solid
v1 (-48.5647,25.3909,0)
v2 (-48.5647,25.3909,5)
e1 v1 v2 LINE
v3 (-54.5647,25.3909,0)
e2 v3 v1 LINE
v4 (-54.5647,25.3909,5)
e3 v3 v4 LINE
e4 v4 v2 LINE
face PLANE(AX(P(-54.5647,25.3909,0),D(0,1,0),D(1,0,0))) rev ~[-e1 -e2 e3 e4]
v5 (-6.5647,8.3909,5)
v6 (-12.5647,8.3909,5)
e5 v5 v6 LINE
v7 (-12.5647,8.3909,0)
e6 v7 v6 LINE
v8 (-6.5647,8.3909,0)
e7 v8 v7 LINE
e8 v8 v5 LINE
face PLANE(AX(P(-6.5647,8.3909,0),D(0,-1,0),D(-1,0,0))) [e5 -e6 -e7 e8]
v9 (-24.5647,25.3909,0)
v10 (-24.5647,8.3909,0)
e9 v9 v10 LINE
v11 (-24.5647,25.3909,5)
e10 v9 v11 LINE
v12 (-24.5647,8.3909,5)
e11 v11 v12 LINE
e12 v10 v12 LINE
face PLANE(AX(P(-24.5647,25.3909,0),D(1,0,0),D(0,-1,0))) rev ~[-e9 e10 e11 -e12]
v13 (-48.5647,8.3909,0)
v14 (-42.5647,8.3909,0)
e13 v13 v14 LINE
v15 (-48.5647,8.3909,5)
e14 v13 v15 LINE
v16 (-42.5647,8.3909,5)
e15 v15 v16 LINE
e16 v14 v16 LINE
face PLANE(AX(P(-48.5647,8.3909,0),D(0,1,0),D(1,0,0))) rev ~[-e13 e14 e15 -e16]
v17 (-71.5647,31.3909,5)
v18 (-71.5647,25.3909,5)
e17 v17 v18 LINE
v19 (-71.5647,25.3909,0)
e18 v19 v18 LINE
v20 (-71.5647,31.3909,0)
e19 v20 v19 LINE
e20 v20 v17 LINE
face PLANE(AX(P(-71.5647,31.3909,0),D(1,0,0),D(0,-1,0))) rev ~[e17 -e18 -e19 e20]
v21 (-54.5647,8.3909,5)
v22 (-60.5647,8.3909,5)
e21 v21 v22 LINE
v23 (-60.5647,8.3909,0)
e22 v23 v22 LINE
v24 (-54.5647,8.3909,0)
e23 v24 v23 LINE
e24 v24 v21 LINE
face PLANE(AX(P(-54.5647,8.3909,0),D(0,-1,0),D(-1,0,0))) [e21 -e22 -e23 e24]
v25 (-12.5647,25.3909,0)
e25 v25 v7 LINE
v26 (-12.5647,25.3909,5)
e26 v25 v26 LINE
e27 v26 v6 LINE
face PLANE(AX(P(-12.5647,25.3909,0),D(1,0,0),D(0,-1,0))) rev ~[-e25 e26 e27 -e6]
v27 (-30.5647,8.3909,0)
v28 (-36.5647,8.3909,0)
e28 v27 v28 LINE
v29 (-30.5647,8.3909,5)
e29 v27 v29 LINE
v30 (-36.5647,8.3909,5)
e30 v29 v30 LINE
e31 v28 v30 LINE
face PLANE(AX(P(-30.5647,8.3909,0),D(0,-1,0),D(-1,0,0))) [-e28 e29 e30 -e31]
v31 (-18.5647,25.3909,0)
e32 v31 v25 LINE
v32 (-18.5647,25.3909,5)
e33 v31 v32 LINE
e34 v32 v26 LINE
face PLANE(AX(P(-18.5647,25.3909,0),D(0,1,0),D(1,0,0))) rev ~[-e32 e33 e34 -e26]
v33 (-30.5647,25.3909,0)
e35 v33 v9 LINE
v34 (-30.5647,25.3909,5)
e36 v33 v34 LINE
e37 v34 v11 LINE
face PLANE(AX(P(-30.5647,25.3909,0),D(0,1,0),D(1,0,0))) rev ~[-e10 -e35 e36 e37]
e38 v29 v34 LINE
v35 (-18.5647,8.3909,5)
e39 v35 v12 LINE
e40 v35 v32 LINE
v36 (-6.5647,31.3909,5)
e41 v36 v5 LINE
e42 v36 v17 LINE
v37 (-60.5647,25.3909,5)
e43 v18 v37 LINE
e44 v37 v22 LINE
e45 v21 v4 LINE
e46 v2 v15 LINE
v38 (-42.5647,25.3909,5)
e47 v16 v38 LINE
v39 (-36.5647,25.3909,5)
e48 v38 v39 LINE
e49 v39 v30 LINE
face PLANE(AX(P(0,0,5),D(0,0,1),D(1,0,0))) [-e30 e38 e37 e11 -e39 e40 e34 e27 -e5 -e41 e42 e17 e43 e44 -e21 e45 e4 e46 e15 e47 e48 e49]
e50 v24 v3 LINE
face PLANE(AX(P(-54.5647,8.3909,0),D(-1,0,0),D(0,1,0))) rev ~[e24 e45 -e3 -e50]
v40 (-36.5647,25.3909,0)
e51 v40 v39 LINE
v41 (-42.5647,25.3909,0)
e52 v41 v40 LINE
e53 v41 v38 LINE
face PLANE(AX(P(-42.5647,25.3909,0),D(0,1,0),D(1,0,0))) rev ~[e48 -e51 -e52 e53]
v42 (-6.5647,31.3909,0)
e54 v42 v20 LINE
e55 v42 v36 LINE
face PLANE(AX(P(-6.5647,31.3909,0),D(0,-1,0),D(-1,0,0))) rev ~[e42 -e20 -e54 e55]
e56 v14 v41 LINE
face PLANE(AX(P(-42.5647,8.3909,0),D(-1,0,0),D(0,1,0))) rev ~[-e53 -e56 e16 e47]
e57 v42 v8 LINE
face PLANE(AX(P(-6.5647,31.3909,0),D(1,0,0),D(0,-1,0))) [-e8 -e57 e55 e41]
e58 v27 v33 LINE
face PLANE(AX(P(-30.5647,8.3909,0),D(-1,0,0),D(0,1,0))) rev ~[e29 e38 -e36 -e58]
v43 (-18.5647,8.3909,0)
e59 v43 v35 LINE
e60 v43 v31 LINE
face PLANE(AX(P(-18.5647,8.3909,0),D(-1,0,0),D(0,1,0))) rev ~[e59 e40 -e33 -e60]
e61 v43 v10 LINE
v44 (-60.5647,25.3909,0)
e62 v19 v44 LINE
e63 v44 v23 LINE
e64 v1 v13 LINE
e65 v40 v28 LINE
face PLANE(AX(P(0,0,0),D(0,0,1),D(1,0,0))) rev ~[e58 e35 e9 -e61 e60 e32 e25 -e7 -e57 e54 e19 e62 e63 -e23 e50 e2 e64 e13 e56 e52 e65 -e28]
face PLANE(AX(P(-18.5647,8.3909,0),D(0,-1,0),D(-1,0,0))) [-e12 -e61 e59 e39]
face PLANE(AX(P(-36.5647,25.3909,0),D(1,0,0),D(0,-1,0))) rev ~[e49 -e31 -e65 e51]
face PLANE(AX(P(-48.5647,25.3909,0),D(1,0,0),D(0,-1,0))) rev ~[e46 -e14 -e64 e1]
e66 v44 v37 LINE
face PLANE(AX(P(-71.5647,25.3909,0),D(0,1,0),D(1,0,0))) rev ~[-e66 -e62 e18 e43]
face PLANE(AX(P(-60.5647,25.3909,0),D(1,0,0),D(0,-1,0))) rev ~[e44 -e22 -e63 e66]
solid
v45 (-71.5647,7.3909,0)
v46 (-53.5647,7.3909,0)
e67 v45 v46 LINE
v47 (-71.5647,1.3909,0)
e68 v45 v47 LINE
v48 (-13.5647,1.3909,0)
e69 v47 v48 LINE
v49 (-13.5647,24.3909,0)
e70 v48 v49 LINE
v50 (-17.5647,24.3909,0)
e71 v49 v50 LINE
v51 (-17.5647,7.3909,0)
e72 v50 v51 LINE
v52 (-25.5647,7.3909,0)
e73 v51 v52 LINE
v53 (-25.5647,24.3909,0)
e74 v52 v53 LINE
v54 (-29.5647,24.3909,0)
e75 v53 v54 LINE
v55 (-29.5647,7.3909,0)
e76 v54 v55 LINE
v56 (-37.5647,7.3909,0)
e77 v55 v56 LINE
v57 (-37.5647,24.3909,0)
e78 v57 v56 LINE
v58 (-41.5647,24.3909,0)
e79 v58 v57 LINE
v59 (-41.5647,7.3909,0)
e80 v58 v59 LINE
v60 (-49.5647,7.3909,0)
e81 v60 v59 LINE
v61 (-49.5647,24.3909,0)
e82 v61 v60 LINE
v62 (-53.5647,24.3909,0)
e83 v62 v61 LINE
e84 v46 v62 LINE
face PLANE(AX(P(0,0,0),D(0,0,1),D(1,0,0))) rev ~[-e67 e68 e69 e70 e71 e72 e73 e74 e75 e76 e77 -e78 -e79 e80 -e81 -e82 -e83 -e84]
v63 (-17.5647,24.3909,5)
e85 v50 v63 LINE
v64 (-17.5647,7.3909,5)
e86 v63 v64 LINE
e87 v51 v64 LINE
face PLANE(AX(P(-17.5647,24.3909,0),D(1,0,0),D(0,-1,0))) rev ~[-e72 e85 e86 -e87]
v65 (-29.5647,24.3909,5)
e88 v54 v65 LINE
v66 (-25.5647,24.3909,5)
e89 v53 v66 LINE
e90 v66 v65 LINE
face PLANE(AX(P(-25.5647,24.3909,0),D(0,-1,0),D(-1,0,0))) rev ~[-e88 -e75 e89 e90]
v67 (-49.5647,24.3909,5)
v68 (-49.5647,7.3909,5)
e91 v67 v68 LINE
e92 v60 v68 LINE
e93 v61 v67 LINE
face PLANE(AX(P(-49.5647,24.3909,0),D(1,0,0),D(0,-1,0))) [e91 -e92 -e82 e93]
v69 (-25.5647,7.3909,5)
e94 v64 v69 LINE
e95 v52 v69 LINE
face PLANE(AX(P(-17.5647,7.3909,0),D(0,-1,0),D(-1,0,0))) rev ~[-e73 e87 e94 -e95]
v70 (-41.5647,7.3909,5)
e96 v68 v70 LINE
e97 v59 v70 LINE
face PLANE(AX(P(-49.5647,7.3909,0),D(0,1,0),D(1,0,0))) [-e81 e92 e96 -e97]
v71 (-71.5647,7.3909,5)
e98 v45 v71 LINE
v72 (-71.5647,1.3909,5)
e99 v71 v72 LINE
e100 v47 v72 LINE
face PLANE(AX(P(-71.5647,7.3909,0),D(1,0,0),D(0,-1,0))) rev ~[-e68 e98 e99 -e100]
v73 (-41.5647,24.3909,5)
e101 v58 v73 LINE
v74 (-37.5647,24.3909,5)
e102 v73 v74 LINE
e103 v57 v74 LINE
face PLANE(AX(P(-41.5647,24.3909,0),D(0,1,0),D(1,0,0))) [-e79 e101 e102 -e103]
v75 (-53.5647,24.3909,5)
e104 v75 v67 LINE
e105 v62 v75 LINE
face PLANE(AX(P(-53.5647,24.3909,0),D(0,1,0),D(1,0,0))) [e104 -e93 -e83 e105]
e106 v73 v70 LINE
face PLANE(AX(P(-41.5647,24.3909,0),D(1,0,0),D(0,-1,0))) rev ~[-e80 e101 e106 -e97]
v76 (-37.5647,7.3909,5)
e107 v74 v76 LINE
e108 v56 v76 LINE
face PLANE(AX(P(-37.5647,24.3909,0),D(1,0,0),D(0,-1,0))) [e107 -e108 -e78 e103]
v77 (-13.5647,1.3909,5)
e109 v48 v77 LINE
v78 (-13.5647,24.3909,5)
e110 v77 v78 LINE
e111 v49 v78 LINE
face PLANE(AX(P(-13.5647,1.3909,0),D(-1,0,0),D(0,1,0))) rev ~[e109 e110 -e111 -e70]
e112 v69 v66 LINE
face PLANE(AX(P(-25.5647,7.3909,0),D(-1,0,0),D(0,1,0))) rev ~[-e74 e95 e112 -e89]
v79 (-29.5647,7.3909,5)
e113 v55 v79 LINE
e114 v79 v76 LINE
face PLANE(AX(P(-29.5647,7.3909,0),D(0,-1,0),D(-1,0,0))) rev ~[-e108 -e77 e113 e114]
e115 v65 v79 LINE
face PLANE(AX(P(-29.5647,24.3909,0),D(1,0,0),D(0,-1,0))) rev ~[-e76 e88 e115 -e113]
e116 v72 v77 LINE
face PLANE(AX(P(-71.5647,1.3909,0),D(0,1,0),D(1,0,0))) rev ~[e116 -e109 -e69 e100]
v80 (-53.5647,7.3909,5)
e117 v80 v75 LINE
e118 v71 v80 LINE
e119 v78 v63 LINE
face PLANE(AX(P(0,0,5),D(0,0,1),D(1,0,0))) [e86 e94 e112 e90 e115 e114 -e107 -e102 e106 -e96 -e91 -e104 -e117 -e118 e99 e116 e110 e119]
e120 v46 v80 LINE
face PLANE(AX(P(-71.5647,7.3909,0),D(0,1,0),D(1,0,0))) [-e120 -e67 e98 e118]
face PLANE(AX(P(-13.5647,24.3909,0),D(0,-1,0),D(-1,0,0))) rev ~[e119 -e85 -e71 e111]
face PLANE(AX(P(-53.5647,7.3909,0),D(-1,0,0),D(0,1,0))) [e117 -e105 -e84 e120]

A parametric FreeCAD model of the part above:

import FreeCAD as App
import Part
import Sketcher
from FreeCAD import Vector


def add_polygon(sketch, points):
    """Adds a closed chain of lines whose ends are joined by coincident constraints."""
    first, n = sketch.GeometryCount, len(points)
    for a, b in zip(points, points[1:] + points[:1]):
        sketch.addGeometry(Part.LineSegment(App.Vector(*a, 0), App.Vector(*b, 0)), False)
    for i in range(n):
        sketch.addConstraint(Sketcher.Constraint("Coincident", first + i, 2, first + (i + 1) % n, 1))

doc = App.newDocument("Part")
body = doc.addObject("PartDesign::Body", "Body")
body.AllowCompound = True

sketch1 = body.newObject("Sketcher::SketchObject", "Sketch")
sketch1.AttachmentSupport = (doc.getObject("XY_Plane"), [""])
sketch1.MapMode = "FlatFace"
add_polygon(sketch1, [(-6.6, 8.4), (-6.6, 31.4), (-71.6, 31.4), (-71.6, 25.4), (-60.6, 25.4), (-60.6, 8.4), (-54.6, 8.4), (-54.6, 25.4), (-48.6, 25.4), (-48.6, 8.4), (-42.6, 8.4), (-42.6, 25.4), (-36.6, 25.4), (-36.6, 8.4), (-30.6, 8.4), (-30.6, 25.4), (-24.6, 25.4), (-24.6, 8.4), (-18.6, 8.4), (-18.6, 25.4), (-12.6, 25.4), (-12.6, 8.4)])
add_polygon(sketch1, [(-53.6, 7.4), (-71.6, 7.4), (-71.6, 1.4), (-13.6, 1.4), (-13.6, 24.4), (-17.6, 24.4), (-17.6, 7.4), (-25.6, 7.4), (-25.6, 24.4), (-29.6, 24.4), (-29.6, 7.4), (-37.6, 7.4), (-37.6, 24.4), (-41.6, 24.4), (-41.6, 7.4), (-49.6, 7.4), (-49.6, 24.4), (-53.6, 24.4)])
sketch1.addConstraint([
    Sketcher.Constraint("Vertical", 0),
    Sketcher.Constraint("Horizontal", 1),
    Sketcher.Constraint("Vertical", 2),
    Sketcher.Constraint("Horizontal", 3),
    Sketcher.Constraint("Vertical", 4),
    Sketcher.Constraint("Horizontal", 5),
    Sketcher.Constraint("Vertical", 6),
    Sketcher.Constraint("Horizontal", 7),
    Sketcher.Constraint("Vertical", 8),
    Sketcher.Constraint("Horizontal", 9),
    Sketcher.Constraint("Vertical", 10),
    Sketcher.Constraint("Horizontal", 11),
    Sketcher.Constraint("Vertical", 12),
    Sketcher.Constraint("Horizontal", 13),
    Sketcher.Constraint("Vertical", 14),
    Sketcher.Constraint("Horizontal", 15),
    Sketcher.Constraint("Vertical", 16),
    Sketcher.Constraint("Horizontal", 17),
    Sketcher.Constraint("Vertical", 18),
    Sketcher.Constraint("Horizontal", 19),
    Sketcher.Constraint("Vertical", 20),
    Sketcher.Constraint("Horizontal", 21),
    Sketcher.Constraint("Horizontal", 22),
    Sketcher.Constraint("Vertical", 23),
    Sketcher.Constraint("Horizontal", 24),
    Sketcher.Constraint("Vertical", 25),
    Sketcher.Constraint("Horizontal", 26),
    Sketcher.Constraint("Vertical", 27),
    Sketcher.Constraint("Horizontal", 28),
    Sketcher.Constraint("Vertical", 29),
    Sketcher.Constraint("Horizontal", 30),
    Sketcher.Constraint("Vertical", 31),
    Sketcher.Constraint("Horizontal", 32),
    Sketcher.Constraint("Vertical", 33),
    Sketcher.Constraint("Horizontal", 34),
    Sketcher.Constraint("Vertical", 35),
    Sketcher.Constraint("Horizontal", 36),
    Sketcher.Constraint("Vertical", 37),
    Sketcher.Constraint("Horizontal", 38),
    Sketcher.Constraint("Vertical", 39),
    Sketcher.Constraint("Horizontal", 3, 2, 6, 2),
    Sketcher.Constraint("Horizontal", 5, 2, 8, 2),
    Sketcher.Constraint("Horizontal", 7, 2, 10, 2),
    Sketcher.Constraint("Horizontal", 9, 2, 12, 2),
    Sketcher.Constraint("Horizontal", 11, 2, 14, 2),
    Sketcher.Constraint("Horizontal", 13, 2, 16, 2),
    Sketcher.Constraint("Horizontal", 15, 2, 18, 2),
    Sketcher.Constraint("Horizontal", 17, 2, 20, 2),
    Sketcher.Constraint("Horizontal", 22, 2, 27, 2),
    Sketcher.Constraint("Horizontal", 26, 2, 29, 2),
    Sketcher.Constraint("Horizontal", 28, 2, 31, 2),
    Sketcher.Constraint("Horizontal", 30, 2, 33, 2),
    Sketcher.Constraint("Horizontal", 32, 2, 35, 2),
    Sketcher.Constraint("Horizontal", 34, 2, 37, 2),
    Sketcher.Constraint("Vertical", 2, 2, 22, 2),
    Sketcher.Constraint("Equal", 5, 7),
    Sketcher.Constraint("Equal", 7, 9),
    Sketcher.Constraint("Equal", 9, 11),
    Sketcher.Constraint("Equal", 11, 13),
    Sketcher.Constraint("Equal", 13, 15),
    Sketcher.Constraint("Equal", 15, 17),
    Sketcher.Constraint("Equal", 17, 19),
    Sketcher.Constraint("Equal", 19, 21),
    Sketcher.Constraint("Equal", 26, 30),
    Sketcher.Constraint("Equal", 28, 32),
    Sketcher.Constraint("Equal", 30, 34),
    Sketcher.Constraint("Equal", 32, 36),
    Sketcher.Constraint("Equal", 34, 38),
    Sketcher.Constraint("Equal", 21, 2),
    Sketcher.Constraint("Equal", 2, 23),
    Sketcher.Constraint("Equal", 0, 25),
    Sketcher.Constraint("DistanceX", 1, 2, 1, 1, 65.0),
    Sketcher.Constraint("DistanceX", 5, 1, 5, 2, 6.0),
    Sketcher.Constraint("DistanceY", 0, 1, 0, 2, 23.0),
    Sketcher.Constraint("DistanceY", 22, 2, 4, 2, 1.0),
    Sketcher.Constraint("DistanceX", 24, 2, 20, 2, 1.0),
    Sketcher.Constraint("DistanceX", 18, 2, 26, 2, 1.0),
    Sketcher.Constraint("DistanceX", 28, 2, 16, 2, 1.0),
    Sketcher.Constraint("DistanceY", -1, 1, 0, 2, 31.391),
    Sketcher.Constraint("DistanceX", 1, 2, -1, 1, 71.5647),
])
pad1 = body.newObject("PartDesign::Pad", "Pad")
pad1.Profile = sketch1
pad1.Length = 5

doc.recompute()
